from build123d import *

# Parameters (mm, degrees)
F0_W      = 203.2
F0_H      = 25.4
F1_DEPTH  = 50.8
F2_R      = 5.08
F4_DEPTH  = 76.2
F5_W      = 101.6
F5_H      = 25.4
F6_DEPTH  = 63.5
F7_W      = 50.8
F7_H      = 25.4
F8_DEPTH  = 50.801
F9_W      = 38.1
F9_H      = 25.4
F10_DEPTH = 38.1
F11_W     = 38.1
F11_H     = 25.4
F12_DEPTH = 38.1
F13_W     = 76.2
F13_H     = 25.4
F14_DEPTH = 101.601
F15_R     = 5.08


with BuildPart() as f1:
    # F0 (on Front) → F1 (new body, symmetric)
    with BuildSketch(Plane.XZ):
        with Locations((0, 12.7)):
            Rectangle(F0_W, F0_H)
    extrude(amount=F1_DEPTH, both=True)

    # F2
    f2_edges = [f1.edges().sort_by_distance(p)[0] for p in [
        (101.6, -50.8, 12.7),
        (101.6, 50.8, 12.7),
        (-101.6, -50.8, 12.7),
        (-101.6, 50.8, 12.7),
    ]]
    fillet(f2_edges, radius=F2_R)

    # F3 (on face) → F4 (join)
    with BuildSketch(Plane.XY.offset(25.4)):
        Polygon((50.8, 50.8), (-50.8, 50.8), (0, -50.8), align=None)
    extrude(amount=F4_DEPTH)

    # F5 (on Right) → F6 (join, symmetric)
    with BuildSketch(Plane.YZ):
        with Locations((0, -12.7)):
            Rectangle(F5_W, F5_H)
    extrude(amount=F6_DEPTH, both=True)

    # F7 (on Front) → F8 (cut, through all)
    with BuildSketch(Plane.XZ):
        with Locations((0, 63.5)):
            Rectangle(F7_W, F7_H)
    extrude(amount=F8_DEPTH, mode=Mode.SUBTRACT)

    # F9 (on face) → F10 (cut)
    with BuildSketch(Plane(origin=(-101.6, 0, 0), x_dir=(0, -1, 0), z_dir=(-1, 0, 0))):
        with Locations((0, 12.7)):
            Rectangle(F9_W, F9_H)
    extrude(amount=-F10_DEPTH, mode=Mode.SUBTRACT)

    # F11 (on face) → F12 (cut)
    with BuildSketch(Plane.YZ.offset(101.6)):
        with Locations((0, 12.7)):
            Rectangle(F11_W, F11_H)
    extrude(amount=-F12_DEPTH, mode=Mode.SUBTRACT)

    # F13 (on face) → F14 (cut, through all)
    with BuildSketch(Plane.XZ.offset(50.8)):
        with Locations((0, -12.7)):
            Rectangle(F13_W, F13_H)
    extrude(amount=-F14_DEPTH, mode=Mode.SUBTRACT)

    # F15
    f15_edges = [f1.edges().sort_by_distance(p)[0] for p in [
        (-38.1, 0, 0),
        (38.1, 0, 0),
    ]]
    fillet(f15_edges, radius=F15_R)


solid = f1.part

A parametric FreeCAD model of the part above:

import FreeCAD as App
import Part
import Sketcher

V = App.Vector
Q = App.Units.Quantity


def edges_at(feature, points):
    """Names of the edges that pass closest to the given points."""
    edges = feature.Shape.Edges
    near = lambda p: min(range(len(edges)), key=lambda i: edges[i].distToShape(Part.Vertex(*p))[0])
    return sorted({f"Edge{near(p) + 1}" for p in points})


def add_polygon(sketch, points):
    """Adds a closed chain of lines whose ends are joined by coincident constraints."""
    first, n = sketch.GeometryCount, len(points)
    for a, b in zip(points, points[1:] + points[:1]):
        sketch.addGeometry(Part.LineSegment(App.Vector(*a, 0), App.Vector(*b, 0)), False)
    for i in range(n):
        sketch.addConstraint(Sketcher.Constraint("Coincident", first + i, 2, first + (i + 1) % n, 1))

doc = App.newDocument("Part")
body = doc.addObject("PartDesign::Body", "Body")

sketch1 = doc.addObject("Sketcher::SketchObject", "Sketch")
body.addObject(sketch1)
sketch1.AttachmentSupport = (doc.XZ_Plane, [""])
sketch1.MapMode = "FlatFace"
add_polygon(sketch1, [(-102, 25), (-102, 0), (102, 0), (102, 25)])
sketch1.addConstraint([
    Sketcher.Constraint("Vertical", 0),
    Sketcher.Constraint("Horizontal", 1),
    Sketcher.Constraint("Vertical", 2),
    Sketcher.Constraint("Horizontal", 3),
    Sketcher.Constraint("Symmetric", 0, 2, 1, 2, -1, 1),
    Sketcher.Constraint("DistanceX", 1, 1, 1, 2, Q("8 in")),
    Sketcher.Constraint("DistanceY", 0, 2, 0, 1, Q("1 in")),
])
pad1 = doc.addObject("PartDesign::Pad", "Pad")
body.addObject(pad1)
pad1.Profile = sketch1
pad1.Length = Q("4 in")
pad1.Midplane = True
doc.recompute()

fillet = doc.addObject("PartDesign::Fillet", "Fillet")
body.addObject(fillet)
fillet.Base = (pad1, edges_at(pad1, [
    (101.6, -50.8, 12.7),
    (101.6, 50.8, 12.7),
    (-101.6, -50.8, 12.7),
    (-101.6, 50.8, 12.7),
]))
fillet.Radius = Q("0.2 in")

sketch2 = doc.addObject("Sketcher::SketchObject", "Sketch001")
body.addObject(sketch2)
sketch2.AttachmentSupport = (doc.XY_Plane, [""])
sketch2.MapMode = "FlatFace"
sketch2.AttachmentOffset = App.Placement(V(0, 0, 1 * 25.4), App.Rotation())
add_polygon(sketch2, [(51, 51), (-51, 51), (0, -51)])
sketch2.addConstraint([
    Sketcher.Constraint("Horizontal", 0),
    Sketcher.Constraint("PointOnObject", 1, 2, -2),
    Sketcher.Constraint("Equal", 1, 2),
    Sketcher.Constraint("DistanceX", 0, 2, 0, 1, Q("4 in")),
    Sketcher.Constraint("DistanceY", -1, 1, 0, 2, Q("2 in")),
    Sketcher.Constraint("DistanceY", 1, 2, -1, 1, Q("2 in")),
])
pad2 = doc.addObject("PartDesign::Pad", "Pad001")
body.addObject(pad2)
pad2.Profile = sketch2
pad2.Length = Q("3 in")

sketch3 = doc.addObject("Sketcher::SketchObject", "Sketch002")
body.addObject(sketch3)
sketch3.AttachmentSupport = (doc.YZ_Plane, [""])
sketch3.MapMode = "FlatFace"
add_polygon(sketch3, [(-51, 0), (-51, -25), (51, -25), (51, 0)])
sketch3.addConstraint([
    Sketcher.Constraint("Vertical", 0),
    Sketcher.Constraint("Horizontal", 1),
    Sketcher.Constraint("Vertical", 2),
    Sketcher.Constraint("Horizontal", 3),
    Sketcher.Constraint("Symmetric", 2, 2, 3, 2, -1, 1),
    Sketcher.Constraint("DistanceX", 1, 1, 1, 2, Q("4 in")),
    Sketcher.Constraint("DistanceY", 0, 2, 0, 1, Q("1 in")),
])
pad3 = doc.addObject("PartDesign::Pad", "Pad002")
body.addObject(pad3)
pad3.Profile = sketch3
pad3.Length = Q("5 in")
pad3.Midplane = True

sketch4 = doc.addObject("Sketcher::SketchObject", "Sketch003")
body.addObject(sketch4)
sketch4.AttachmentSupport = (doc.XZ_Plane, [""])
sketch4.MapMode = "FlatFace"
add_polygon(sketch4, [(-25, 76), (-25, 51), (25, 51), (25, 76)])
sketch4.addConstraint([
    Sketcher.Constraint("Vertical", 0),
    Sketcher.Constraint("Horizontal", 1),
    Sketcher.Constraint("Vertical", 2),
    Sketcher.Constraint("Horizontal", 3),
    Sketcher.Constraint("DistanceX", 1, 1, 1, 2, Q("2 in")),
    Sketcher.Constraint("DistanceY", 0, 2, 0, 1, Q("1 in")),
    Sketcher.Constraint("DistanceX", 0, 2, -1, 1, Q("1 in")),
    Sketcher.Constraint("DistanceY", -1, 1, 0, 2, Q("2 in")),
])
pocket1 = doc.addObject("PartDesign::Pocket", "Pocket")
body.addObject(pocket1)
pocket1.Profile = sketch4
pocket1.Type = "ThroughAll"
pocket1.Reversed = True

sketch5 = doc.addObject("Sketcher::SketchObject", "Sketch004")
body.addObject(sketch5)
sketch5.AttachmentSupport = (doc.YZ_Plane, [""])
sketch5.MapMode = "FlatFace"
sketch5.AttachmentOffset = App.Placement(V(0, 0, -4 * 25.4), App.Rotation())
add_polygon(sketch5, [(19, 25), (19, 0), (-19, 0), (-19, 25)])
sketch5.addConstraint([
    Sketcher.Constraint("Vertical", 0),
    Sketcher.Constraint("Horizontal", 1),
    Sketcher.Constraint("Vertical", 2),
    Sketcher.Constraint("Horizontal", 3),
    Sketcher.Constraint("Symmetric", 0, 2, 1, 2, -1, 1),
    Sketcher.Constraint("DistanceY", 0, 2, 0, 1, Q("1 in")),
    Sketcher.Constraint("DistanceX", 1, 2, 1, 1, Q("1.5 in")),
])
pocket2 = doc.addObject("PartDesign::Pocket", "Pocket001")
body.addObject(pocket2)
pocket2.Profile = sketch5
pocket2.Length = Q("1.5 in")
pocket2.Reversed = True

sketch6 = doc.addObject("Sketcher::SketchObject", "Sketch005")
body.addObject(sketch6)
sketch6.AttachmentSupport = (doc.YZ_Plane, [""])
sketch6.MapMode = "FlatFace"
sketch6.AttachmentOffset = App.Placement(V(0, 0, 4 * 25.4), App.Rotation())
add_polygon(sketch6, [(-19, 25), (-19, 0), (19, 0), (19, 25)])
sketch6.addConstraint([
    Sketcher.Constraint("Vertical", 0),
    Sketcher.Constraint("Horizontal", 1),
    Sketcher.Constraint("Vertical", 2),
    Sketcher.Constraint("Horizontal", 3),
    Sketcher.Constraint("Symmetric", 0, 2, 1, 2, -1, 1),
    Sketcher.Constraint("DistanceY", 0, 2, 0, 1, Q("1 in")),
    Sketcher.Constraint("DistanceX", 1, 1, 1, 2, Q("1.5 in")),
])
pocket3 = doc.addObject("PartDesign::Pocket", "Pocket002")
body.addObject(pocket3)
pocket3.Profile = sketch6
pocket3.Length = Q("1.5 in")

sketch7 = doc.addObject("Sketcher::SketchObject", "Sketch006")
body.addObject(sketch7)
sketch7.AttachmentSupport = (doc.XZ_Plane, [""])
sketch7.MapMode = "FlatFace"
sketch7.AttachmentOffset = App.Placement(V(0, 0, 2 * 25.4), App.Rotation())
add_polygon(sketch7, [(-38, 0), (-38, -25), (38, -25), (38, 0)])
sketch7.addConstraint([
    Sketcher.Constraint("Vertical", 0),
    Sketcher.Constraint("Horizontal", 1),
    Sketcher.Constraint("Vertical", 2),
    Sketcher.Constraint("Horizontal", 3),
    Sketcher.Constraint("Symmetric", 2, 2, 3, 2, -1, 1),
    Sketcher.Constraint("DistanceX", 1, 1, 1, 2, Q("3 in")),
    Sketcher.Constraint("DistanceY", 0, 2, 0, 1, Q("1 in")),
])
pocket4 = doc.addObject("PartDesign::Pocket", "Pocket003")
body.addObject(pocket4)
pocket4.Profile = sketch7
pocket4.Type = "ThroughAll"
doc.recompute()

fillet2 = doc.addObject("PartDesign::Fillet", "Fillet001")
body.addObject(fillet2)
fillet2.Base = (pocket4, edges_at(pocket4, [(-38.1, 0, 0), (38.1, 0, 0)]))
fillet2.Radius = Q("0.2 in")

doc.recompute()
